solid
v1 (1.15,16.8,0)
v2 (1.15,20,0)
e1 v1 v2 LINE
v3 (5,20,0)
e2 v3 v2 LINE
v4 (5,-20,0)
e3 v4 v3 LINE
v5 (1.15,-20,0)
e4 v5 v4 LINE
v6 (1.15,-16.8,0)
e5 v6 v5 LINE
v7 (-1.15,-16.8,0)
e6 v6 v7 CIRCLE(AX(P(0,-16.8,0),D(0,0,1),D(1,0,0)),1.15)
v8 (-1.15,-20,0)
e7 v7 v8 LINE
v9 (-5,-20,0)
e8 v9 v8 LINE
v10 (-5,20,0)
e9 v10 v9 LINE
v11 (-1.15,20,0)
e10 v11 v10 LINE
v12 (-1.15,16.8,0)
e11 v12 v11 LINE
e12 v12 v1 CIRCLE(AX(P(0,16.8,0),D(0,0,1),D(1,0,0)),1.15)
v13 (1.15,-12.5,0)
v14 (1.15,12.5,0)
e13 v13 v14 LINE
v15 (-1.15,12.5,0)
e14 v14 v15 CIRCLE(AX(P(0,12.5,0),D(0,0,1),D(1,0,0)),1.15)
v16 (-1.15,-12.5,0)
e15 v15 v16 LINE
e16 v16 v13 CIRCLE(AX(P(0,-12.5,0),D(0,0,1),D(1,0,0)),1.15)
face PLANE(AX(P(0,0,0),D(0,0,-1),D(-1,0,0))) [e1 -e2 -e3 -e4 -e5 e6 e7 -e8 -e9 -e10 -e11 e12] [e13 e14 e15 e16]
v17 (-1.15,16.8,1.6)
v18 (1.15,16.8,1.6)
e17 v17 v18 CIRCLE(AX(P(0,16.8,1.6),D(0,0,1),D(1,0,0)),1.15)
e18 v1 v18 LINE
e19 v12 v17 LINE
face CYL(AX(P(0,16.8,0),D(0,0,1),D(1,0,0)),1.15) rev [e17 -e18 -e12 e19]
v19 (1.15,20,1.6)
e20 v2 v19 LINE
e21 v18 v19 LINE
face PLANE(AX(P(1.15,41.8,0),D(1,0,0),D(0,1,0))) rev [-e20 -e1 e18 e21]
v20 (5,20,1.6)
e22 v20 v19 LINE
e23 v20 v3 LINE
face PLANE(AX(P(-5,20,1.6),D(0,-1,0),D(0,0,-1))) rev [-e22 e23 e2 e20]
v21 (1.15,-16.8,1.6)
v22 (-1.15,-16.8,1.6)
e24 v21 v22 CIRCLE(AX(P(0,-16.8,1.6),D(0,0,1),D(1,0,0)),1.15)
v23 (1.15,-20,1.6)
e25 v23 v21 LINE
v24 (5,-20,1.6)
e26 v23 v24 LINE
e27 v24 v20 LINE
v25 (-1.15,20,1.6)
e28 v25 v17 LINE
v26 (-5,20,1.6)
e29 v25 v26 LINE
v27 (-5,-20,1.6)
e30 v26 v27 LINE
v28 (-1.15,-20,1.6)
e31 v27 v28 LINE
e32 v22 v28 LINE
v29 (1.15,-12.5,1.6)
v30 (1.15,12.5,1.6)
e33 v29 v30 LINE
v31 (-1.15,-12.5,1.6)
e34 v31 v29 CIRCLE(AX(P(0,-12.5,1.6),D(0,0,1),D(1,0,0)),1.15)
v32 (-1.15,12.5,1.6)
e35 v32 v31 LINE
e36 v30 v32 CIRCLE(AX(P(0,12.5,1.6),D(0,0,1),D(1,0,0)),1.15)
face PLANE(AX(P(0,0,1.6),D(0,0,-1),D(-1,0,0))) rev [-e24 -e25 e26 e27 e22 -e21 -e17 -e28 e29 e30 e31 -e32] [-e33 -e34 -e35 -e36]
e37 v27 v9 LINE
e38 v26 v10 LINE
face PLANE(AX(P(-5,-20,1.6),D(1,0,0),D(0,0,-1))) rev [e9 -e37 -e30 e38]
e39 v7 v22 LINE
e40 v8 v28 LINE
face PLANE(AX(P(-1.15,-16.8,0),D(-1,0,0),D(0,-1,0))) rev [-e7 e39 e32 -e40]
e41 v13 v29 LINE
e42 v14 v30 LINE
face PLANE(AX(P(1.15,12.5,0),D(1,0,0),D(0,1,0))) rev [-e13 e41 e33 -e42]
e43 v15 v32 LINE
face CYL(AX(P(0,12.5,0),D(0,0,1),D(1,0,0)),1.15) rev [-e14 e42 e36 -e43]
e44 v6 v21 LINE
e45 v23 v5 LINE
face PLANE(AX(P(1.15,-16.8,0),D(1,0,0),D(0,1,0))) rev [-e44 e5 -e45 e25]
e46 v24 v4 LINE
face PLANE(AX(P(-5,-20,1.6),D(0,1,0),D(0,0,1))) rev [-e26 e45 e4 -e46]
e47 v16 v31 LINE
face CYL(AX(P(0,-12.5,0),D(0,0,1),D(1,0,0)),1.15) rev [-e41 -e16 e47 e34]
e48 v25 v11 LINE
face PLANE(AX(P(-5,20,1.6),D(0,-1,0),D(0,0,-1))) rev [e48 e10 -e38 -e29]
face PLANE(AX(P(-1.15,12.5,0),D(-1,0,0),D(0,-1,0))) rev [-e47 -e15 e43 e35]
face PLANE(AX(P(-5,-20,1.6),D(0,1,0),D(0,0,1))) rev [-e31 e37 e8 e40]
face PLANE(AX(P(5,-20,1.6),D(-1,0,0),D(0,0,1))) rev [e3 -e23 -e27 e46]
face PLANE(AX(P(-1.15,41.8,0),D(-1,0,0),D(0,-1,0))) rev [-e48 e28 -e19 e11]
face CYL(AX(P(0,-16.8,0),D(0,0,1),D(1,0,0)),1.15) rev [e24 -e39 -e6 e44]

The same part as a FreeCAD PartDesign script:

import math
import FreeCAD as App
import Part
import Sketcher
from FreeCAD import Vector

doc = App.newDocument("Part")
body = doc.addObject("PartDesign::Body", "Body")

# Sketch on XY plane
sketch1 = body.newObject("Sketcher::SketchObject", "Sketch")
sketch1.AttachmentSupport = (doc.getObject("XY_Plane"), [""])
sketch1.MapMode = "FlatFace"
sketch1.addGeometry(Part.LineSegment(Vector(-5, 20, 0), Vector(-5, -20, 0)), False)
sketch1.addGeometry(Part.LineSegment(Vector(-5, -20, 0), Vector(5, -20, 0)), False)
sketch1.addGeometry(Part.LineSegment(Vector(5, -20, 0), Vector(5, 20, 0)), False)
sketch1.addGeometry(Part.LineSegment(Vector(5, 20, 0), Vector(-5, 20, 0)), False)
sketch1.addConstraint(Sketcher.Constraint("Coincident", 0, 2, 1, 1))
sketch1.addConstraint(Sketcher.Constraint("Coincident", 1, 2, 2, 1))
sketch1.addConstraint(Sketcher.Constraint("Coincident", 2, 2, 3, 1))
sketch1.addConstraint(Sketcher.Constraint("Coincident", 3, 2, 0, 1))
sketch1.addConstraint(Sketcher.Constraint("Vertical", 0))
sketch1.addConstraint(Sketcher.Constraint("Horizontal", 1))
sketch1.addConstraint(Sketcher.Constraint("Vertical", 2))
sketch1.addConstraint(Sketcher.Constraint("Horizontal", 3))
sketch1.addConstraint(Sketcher.Constraint("Symmetric", 0, 2, 2, 2, -1, 1))
sketch1.addConstraint(Sketcher.Constraint("DistanceX", 1, 1, 1, 2, 10.0))
sketch1.addConstraint(Sketcher.Constraint("DistanceY", 0, 2, 0, 1, 40.0))
pad1 = body.newObject("PartDesign::Pad", "Pad")
pad1.Profile = sketch1
pad1.Length = 1.6

# Sketch on XY plane
sketch2 = body.newObject("Sketcher::SketchObject", "Sketch001")
sketch2.AttachmentSupport = (doc.getObject("XY_Plane"), [""])
sketch2.MapMode = "FlatFace"
sketch2.AttachmentOffset = App.Placement(Vector(0, 0, 1.6), App.Rotation())
sketch2.addGeometry(Part.LineSegment(Vector(1.1, -12.5, 0), Vector(1.1, 12.5, 0)), False)
sketch2.addGeometry(Part.ArcOfCircle(Part.Circle(Vector(0, 12.5, 0), Vector(0, 0, 1), 1.1), math.radians(0), math.radians(180)), False)
sketch2.addGeometry(Part.LineSegment(Vector(-1.1, 12.5, 0), Vector(-1.1, -12.5, 0)), False)
sketch2.addGeometry(Part.ArcOfCircle(Part.Circle(Vector(0, -12.5, 0), Vector(0, 0, 1), 1.1), math.radians(180), math.radians(360)), False)
sketch2.addGeometry(Part.LineSegment(Vector(1.1, 16.8, 0), Vector(1.1, 41.8, 0)), False)
sketch2.addGeometry(Part.ArcOfCircle(Part.Circle(Vector(0, 41.8, 0), Vector(0, 0, 1), 1.1), math.radians(0), math.radians(180)), False)
sketch2.addGeometry(Part.LineSegment(Vector(-1.1, 41.8, 0), Vector(-1.1, 16.8, 0)), False)
sketch2.addGeometry(Part.ArcOfCircle(Part.Circle(Vector(0, 16.8, 0), Vector(0, 0, 1), 1.1), math.radians(180), math.radians(360)), False)
sketch2.addGeometry(Part.LineSegment(Vector(1.1, -41.8, 0), Vector(1.1, -16.8, 0)), False)
sketch2.addGeometry(Part.ArcOfCircle(Part.Circle(Vector(0, -16.8, 0), Vector(0, 0, 1), 1.1), math.radians(0), math.radians(180)), False)
sketch2.addGeometry(Part.LineSegment(Vector(-1.1, -16.8, 0), Vector(-1.1, -41.8, 0)), False)
sketch2.addGeometry(Part.ArcOfCircle(Part.Circle(Vector(0, -41.8, 0), Vector(0, 0, 1), 1.1), math.radians(180), math.radians(360)), False)
sketch2.addConstraint(Sketcher.Constraint("Tangent", 0, 2, 1, 1))
sketch2.addConstraint(Sketcher.Constraint("Tangent", 1, 2, 2, 1))
sketch2.addConstraint(Sketcher.Constraint("Tangent", 2, 2, 3, 1))
sketch2.addConstraint(Sketcher.Constraint("Tangent", 3, 2, 0, 1))
sketch2.addConstraint(Sketcher.Constraint("Tangent", 4, 2, 5, 1))
sketch2.addConstraint(Sketcher.Constraint("Tangent", 5, 2, 6, 1))
sketch2.addConstraint(Sketcher.Constraint("Tangent", 6, 2, 7, 1))
sketch2.addConstraint(Sketcher.Constraint("Tangent", 7, 2, 4, 1))
sketch2.addConstraint(Sketcher.Constraint("Tangent", 8, 2, 9, 1))
sketch2.addConstraint(Sketcher.Constraint("Tangent", 9, 2, 10, 1))
sketch2.addConstraint(Sketcher.Constraint("Tangent", 10, 2, 11, 1))
sketch2.addConstraint(Sketcher.Constraint("Tangent", 11, 2, 8, 1))
sketch2.addConstraint(Sketcher.Constraint("Vertical", 0))
sketch2.addConstraint(Sketcher.Constraint("Vertical", 2))
sketch2.addConstraint(Sketcher.Constraint("Vertical", 4))
sketch2.addConstraint(Sketcher.Constraint("Vertical", 6))
sketch2.addConstraint(Sketcher.Constraint("Vertical", 8))
sketch2.addConstraint(Sketcher.Constraint("Vertical", 10))
sketch2.addConstraint(Sketcher.Constraint("Equal", 3, 5))
sketch2.addConstraint(Sketcher.Constraint("Equal", 7, 9))
sketch2.addConstraint(Sketcher.Constraint("Symmetric", 1, 3, 3, 3, -1, 1))
sketch2.addConstraint(Sketcher.Constraint("Symmetric", 7, 3, 9, 3, -1, 1))
sketch2.addConstraint(Sketcher.Constraint("Symmetric", 5, 3, 11, 3, -1))
sketch2.addConstraint(Sketcher.Constraint("Equal", 2, 4))
sketch2.addConstraint(Sketcher.Constraint("DistanceY", 0, 1, 0, 2, 25.0))
sketch2.addConstraint(Sketcher.Constraint("Radius", 1, 1.15))
sketch2.addConstraint(Sketcher.Constraint("DistanceY", -1, 1, 5, 3, 41.8))
pocket1 = body.newObject("PartDesign::Pocket", "Pocket")
pocket1.Profile = sketch2
pocket1.Type = "ThroughAll"

doc.recompute()
